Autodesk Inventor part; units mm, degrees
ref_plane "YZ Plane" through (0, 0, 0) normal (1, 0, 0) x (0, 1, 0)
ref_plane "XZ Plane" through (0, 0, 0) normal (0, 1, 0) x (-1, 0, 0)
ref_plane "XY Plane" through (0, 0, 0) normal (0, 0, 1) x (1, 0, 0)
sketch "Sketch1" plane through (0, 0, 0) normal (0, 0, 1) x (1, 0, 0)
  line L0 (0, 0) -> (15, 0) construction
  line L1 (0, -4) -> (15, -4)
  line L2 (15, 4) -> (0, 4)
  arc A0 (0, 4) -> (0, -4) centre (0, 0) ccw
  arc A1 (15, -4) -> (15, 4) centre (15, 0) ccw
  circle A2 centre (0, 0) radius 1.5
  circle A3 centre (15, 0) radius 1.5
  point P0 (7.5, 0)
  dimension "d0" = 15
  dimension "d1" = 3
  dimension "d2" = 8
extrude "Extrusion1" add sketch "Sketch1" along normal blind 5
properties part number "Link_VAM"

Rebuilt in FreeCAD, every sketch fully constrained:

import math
import FreeCAD as App
import Part
import Sketcher
Q = App.Units.Quantity

doc = App.newDocument("Part")
params = doc.addObject("Spreadsheet::Sheet", "Params")
for row, (alias, value) in enumerate([
    ("sketch1_diameter", "3 mm"),
    ("sketch1_radius", "4 mm"),
    ("sketch1_width", "15 mm"),
    ("pad1_length", "5 mm"),
], start=1):
    params.set(f"A{row}", alias)
    params.set(f"B{row}", "=" + value)
    params.setAlias(f"B{row}", alias)

body = doc.addObject("PartDesign::Body", "Body")

# Sketch on XY plane
sketch1 = body.newObject("Sketcher::SketchObject", "Sketch")
sketch1.AttachmentSupport = (doc.getObject("XY_Plane"), [""])
sketch1.MapMode = "FlatFace"
sketch1.addGeometry([
    Part.ArcOfCircle(Part.Circle(App.Vector(0, 0, 0), App.Vector(0, 0, 1), 4), math.radians(90), math.radians(270)),  # 0
    Part.LineSegment(App.Vector(0, -4, 0), App.Vector(15, -4, 0)),  # 1
    Part.ArcOfCircle(Part.Circle(App.Vector(15, 0, 0), App.Vector(0, 0, 1), 4), math.radians(-90), math.radians(90)),  # 2
    Part.LineSegment(App.Vector(15, 4, 0), App.Vector(0, 4, 0)),  # 3
    Part.Circle(App.Vector(0, 0, 0), App.Vector(0, 0, 1), 1.5),  # 4
    Part.Circle(App.Vector(15, 0, 0), App.Vector(0, 0, 1), 1.5),  # 5
], False)
sketch1.addConstraint([
    Sketcher.Constraint("Tangent", 0, 2, 1, 1),
    Sketcher.Constraint("Tangent", 1, 2, 2, 1),
    Sketcher.Constraint("Tangent", 2, 2, 3, 1),
    Sketcher.Constraint("Tangent", 3, 2, 0, 1),
    Sketcher.Constraint("Horizontal", 1),
    Sketcher.Constraint("Horizontal", 3),
    Sketcher.Constraint("Coincident", 0, 3, -1, 1),
    Sketcher.Constraint("Coincident", 4, 3, -1, 1),
    Sketcher.Constraint("Coincident", 5, 3, 2, 3),
    Sketcher.Constraint("Equal", 4, 5),
    Sketcher.Constraint("Diameter", 4, Q("3 mm")),
    Sketcher.Constraint("Radius", 0, Q("4 mm")),
    Sketcher.Constraint("DistanceX", 1, 1, 1, 2, Q("15 mm")),
])
sketch1.setExpression("Constraints[10]", "Params.sketch1_diameter")
sketch1.setExpression("Constraints[11]", "Params.sketch1_radius")
sketch1.setExpression("Constraints[12]", "Params.sketch1_width")
pad1 = body.newObject("PartDesign::Pad", "Pad")
pad1.Profile = sketch1
pad1.setExpression("Length", "Params.pad1_length")

doc.recompute()
